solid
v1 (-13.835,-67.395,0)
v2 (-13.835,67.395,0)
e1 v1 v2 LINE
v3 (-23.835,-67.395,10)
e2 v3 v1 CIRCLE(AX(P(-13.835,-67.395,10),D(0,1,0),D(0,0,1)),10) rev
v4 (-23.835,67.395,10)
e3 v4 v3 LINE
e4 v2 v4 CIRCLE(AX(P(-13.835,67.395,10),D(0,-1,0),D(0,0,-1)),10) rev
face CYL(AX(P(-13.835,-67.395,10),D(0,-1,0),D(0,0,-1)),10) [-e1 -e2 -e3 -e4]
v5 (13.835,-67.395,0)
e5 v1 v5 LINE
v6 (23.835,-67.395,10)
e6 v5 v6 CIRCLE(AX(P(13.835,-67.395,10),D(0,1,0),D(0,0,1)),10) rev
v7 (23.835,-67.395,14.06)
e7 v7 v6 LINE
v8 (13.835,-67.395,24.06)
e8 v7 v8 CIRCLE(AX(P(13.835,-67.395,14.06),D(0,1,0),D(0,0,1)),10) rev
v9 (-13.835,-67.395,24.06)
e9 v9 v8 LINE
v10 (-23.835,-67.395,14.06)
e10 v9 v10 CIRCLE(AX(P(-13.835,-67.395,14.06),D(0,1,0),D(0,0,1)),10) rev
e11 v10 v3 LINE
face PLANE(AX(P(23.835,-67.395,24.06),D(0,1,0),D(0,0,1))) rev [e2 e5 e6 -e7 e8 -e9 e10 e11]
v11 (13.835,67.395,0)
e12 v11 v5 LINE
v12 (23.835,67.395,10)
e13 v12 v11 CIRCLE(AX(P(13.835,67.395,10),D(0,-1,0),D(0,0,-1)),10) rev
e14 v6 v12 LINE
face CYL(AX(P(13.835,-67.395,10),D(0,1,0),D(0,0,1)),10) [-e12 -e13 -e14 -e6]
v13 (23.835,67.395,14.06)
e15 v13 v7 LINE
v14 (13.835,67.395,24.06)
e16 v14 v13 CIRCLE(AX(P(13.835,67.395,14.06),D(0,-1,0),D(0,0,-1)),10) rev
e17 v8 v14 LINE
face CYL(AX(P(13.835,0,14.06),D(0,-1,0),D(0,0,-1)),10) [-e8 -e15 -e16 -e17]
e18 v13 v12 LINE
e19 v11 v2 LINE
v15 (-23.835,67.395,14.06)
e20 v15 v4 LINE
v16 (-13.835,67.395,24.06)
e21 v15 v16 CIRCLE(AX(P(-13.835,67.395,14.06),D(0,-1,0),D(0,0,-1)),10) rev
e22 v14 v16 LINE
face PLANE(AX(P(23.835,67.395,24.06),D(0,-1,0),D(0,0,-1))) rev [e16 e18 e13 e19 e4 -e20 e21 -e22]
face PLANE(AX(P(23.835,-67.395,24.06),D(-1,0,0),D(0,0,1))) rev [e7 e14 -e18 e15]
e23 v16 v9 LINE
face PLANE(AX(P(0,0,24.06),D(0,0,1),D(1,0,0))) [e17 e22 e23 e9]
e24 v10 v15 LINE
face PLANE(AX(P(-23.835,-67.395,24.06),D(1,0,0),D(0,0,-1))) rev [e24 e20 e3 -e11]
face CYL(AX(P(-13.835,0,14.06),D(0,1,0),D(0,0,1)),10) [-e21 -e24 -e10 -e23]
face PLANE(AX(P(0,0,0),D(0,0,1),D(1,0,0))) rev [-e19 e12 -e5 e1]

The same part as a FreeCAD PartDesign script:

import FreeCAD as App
import Part
import Sketcher
from FreeCAD import Vector
Q = App.Units.Quantity


def edges_at(feature, points):
    """Names of the edges that pass closest to the given points."""
    edges = feature.Shape.Edges
    near = lambda p: min(range(len(edges)), key=lambda i: edges[i].distToShape(Part.Vertex(*p))[0])
    return sorted({f"Edge{near(p) + 1}" for p in points})


def add_polygon(sketch, points):
    """Adds a closed chain of lines whose ends are joined by coincident constraints."""
    first, n = sketch.GeometryCount, len(points)
    for a, b in zip(points, points[1:] + points[:1]):
        sketch.addGeometry(Part.LineSegment(App.Vector(*a, 0), App.Vector(*b, 0)), False)
    for i in range(n):
        sketch.addConstraint(Sketcher.Constraint("Coincident", first + i, 2, first + (i + 1) % n, 1))

doc = App.newDocument("Part")
body = doc.addObject("PartDesign::Body", "Body")

# Sketch on XY plane
sketch1 = body.newObject("Sketcher::SketchObject", "Sketch")
sketch1.AttachmentSupport = (doc.getObject("XY_Plane"), [""])
sketch1.MapMode = "FlatFace"
add_polygon(sketch1, [(-24, 67), (-24, -67), (24, -67), (24, 67)])  # lines 0-3
sketch1.addConstraint([
    Sketcher.Constraint("Vertical", 0),
    Sketcher.Constraint("Horizontal", 1),
    Sketcher.Constraint("Vertical", 2),
    Sketcher.Constraint("Horizontal", 3),
    Sketcher.Constraint("Symmetric", 0, 2, 2, 2, -1, 1),
    Sketcher.Constraint("DistanceX", 1, 1, 1, 2, Q("47.67 mm")),
    Sketcher.Constraint("DistanceY", 0, 2, 0, 1, Q("134.79 mm")),
])
pad1 = body.newObject("PartDesign::Pad", "Pad")
pad1.Profile = sketch1
pad1.Length = 24.06
doc.recompute()

fillet = body.newObject("PartDesign::Fillet", "Fillet")
fillet.Base = (pad1, edges_at(pad1, [
    (23.835, 0, 24.06),
    (-23.835, 0, 24.06),
    (23.835, 0, 0),
    (-23.835, 0, 0),
]))
fillet.Radius = 10

doc.recompute()
